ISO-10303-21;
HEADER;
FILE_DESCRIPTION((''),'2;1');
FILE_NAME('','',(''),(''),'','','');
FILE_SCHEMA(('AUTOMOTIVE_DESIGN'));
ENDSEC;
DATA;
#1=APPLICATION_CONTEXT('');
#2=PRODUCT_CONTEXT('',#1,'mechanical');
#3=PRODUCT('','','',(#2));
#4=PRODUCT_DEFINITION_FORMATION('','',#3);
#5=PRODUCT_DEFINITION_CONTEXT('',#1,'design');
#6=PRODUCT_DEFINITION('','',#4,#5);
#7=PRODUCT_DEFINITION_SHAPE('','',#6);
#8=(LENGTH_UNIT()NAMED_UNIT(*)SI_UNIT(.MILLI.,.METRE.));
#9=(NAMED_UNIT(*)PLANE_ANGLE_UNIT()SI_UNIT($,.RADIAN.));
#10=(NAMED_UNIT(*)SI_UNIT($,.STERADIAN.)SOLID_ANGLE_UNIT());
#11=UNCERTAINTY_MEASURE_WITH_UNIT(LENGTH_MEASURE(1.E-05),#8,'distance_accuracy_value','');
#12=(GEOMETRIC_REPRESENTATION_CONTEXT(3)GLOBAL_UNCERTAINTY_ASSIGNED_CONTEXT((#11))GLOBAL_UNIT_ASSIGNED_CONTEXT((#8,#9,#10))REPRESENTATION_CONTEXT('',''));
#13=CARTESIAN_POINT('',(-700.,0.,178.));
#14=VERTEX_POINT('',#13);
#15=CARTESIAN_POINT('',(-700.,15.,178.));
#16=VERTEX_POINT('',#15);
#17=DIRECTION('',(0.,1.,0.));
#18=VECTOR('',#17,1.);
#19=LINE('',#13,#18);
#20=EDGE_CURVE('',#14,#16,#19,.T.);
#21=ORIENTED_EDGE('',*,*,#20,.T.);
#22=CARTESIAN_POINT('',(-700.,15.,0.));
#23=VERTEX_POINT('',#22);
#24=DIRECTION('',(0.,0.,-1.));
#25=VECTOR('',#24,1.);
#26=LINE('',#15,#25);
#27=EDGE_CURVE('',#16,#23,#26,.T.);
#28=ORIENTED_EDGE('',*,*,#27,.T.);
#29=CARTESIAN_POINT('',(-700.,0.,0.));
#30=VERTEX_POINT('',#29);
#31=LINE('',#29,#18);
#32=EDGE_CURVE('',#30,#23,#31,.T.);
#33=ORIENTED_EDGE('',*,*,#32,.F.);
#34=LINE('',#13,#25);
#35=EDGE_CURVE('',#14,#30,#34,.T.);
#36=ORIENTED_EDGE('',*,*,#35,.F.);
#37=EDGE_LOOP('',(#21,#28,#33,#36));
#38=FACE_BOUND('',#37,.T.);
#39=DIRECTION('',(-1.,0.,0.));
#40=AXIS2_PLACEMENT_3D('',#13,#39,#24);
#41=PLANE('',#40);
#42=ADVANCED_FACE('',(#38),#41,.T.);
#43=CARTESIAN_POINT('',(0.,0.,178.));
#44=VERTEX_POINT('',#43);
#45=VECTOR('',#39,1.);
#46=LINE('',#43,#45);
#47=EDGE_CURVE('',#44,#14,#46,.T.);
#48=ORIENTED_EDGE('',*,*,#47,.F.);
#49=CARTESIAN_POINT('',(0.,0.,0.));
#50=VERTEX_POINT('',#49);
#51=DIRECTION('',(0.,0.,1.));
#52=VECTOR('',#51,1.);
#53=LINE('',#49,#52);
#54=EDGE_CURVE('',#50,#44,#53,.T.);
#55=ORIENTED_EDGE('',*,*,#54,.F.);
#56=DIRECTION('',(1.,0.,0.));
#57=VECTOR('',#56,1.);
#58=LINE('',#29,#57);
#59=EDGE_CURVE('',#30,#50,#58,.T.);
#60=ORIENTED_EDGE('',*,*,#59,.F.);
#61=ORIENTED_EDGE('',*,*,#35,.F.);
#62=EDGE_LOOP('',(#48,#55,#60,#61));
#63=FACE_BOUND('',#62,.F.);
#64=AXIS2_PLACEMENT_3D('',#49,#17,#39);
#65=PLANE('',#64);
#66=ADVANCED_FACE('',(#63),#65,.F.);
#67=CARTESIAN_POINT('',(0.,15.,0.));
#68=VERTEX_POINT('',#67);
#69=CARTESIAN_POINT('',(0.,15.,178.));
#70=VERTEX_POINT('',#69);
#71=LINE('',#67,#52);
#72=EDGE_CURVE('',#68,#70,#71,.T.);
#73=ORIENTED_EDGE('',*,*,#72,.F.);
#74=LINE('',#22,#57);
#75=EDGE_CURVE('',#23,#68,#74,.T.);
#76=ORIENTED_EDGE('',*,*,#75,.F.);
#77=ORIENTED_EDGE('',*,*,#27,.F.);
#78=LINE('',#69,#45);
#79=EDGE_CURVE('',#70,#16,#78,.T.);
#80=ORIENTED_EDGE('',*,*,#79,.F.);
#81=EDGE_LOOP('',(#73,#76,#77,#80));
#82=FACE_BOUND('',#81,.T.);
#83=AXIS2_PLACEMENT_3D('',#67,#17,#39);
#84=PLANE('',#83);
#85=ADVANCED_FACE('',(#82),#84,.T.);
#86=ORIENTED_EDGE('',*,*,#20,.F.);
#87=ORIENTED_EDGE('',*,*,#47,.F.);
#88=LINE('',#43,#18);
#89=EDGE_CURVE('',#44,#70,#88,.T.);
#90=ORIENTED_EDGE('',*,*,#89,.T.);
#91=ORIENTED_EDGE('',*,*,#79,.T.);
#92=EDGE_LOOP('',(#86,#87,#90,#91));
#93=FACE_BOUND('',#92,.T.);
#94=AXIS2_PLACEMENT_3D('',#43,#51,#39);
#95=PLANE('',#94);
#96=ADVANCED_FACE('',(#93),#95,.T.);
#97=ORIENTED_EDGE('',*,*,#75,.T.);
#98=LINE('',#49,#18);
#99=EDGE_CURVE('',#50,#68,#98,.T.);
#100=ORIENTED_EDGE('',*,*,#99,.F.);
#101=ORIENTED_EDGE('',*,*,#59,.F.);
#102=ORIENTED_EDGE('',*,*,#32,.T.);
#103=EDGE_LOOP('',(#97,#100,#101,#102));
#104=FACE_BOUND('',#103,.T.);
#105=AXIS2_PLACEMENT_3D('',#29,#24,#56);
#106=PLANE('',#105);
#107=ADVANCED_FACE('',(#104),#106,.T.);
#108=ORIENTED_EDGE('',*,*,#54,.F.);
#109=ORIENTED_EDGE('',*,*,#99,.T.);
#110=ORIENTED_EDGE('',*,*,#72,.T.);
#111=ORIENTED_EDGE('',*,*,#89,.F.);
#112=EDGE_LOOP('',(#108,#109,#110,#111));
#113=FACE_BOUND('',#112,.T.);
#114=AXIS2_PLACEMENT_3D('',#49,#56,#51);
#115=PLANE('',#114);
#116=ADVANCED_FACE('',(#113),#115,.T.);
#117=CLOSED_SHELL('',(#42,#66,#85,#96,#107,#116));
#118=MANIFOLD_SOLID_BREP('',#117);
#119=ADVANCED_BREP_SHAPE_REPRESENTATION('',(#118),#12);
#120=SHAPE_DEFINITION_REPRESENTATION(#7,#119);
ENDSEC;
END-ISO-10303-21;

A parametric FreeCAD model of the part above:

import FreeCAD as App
import Part
import Sketcher
from FreeCAD import Vector
Q = App.Units.Quantity

doc = App.newDocument("Part")
body = doc.addObject("PartDesign::Body", "Body")

sketch1 = doc.addObject("Sketcher::SketchObject", "Sketch")
body.addObject(sketch1)
sketch1.AttachmentSupport = (doc.XZ_Plane, [""])
sketch1.MapMode = "FlatFace"
sketch1.addGeometry(Part.LineSegment(Vector(0, 178, 0), Vector(0, 0, 0)), False)
sketch1.addGeometry(Part.LineSegment(Vector(0, 0, 0), Vector(-700, 0, 0)), False)
sketch1.addGeometry(Part.LineSegment(Vector(-700, 0, 0), Vector(-700, 178, 0)), False)
sketch1.addGeometry(Part.LineSegment(Vector(-700, 178, 0), Vector(0, 178, 0)), False)
sketch1.addConstraint(Sketcher.Constraint("Coincident", 0, 2, 1, 1))
sketch1.addConstraint(Sketcher.Constraint("Coincident", 1, 2, 2, 1))
sketch1.addConstraint(Sketcher.Constraint("Coincident", 2, 2, 3, 1))
sketch1.addConstraint(Sketcher.Constraint("Coincident", 3, 2, 0, 1))
sketch1.addConstraint(Sketcher.Constraint("Vertical", 0))
sketch1.addConstraint(Sketcher.Constraint("Horizontal", 1))
sketch1.addConstraint(Sketcher.Constraint("Vertical", 2))
sketch1.addConstraint(Sketcher.Constraint("Horizontal", 3))
sketch1.addConstraint(Sketcher.Constraint("Coincident", 0, 2, -1, 1))
sketch1.addConstraint(Sketcher.Constraint("DistanceX", 1, 2, 1, 1, Q("700 mm")))
sketch1.addConstraint(Sketcher.Constraint("DistanceY", 0, 2, 0, 1, Q("178 mm")))
pad1 = doc.addObject("PartDesign::Pad", "Pad")
body.addObject(pad1)
pad1.Profile = sketch1
pad1.Length = 15
pad1.Reversed = True

doc.recompute()
